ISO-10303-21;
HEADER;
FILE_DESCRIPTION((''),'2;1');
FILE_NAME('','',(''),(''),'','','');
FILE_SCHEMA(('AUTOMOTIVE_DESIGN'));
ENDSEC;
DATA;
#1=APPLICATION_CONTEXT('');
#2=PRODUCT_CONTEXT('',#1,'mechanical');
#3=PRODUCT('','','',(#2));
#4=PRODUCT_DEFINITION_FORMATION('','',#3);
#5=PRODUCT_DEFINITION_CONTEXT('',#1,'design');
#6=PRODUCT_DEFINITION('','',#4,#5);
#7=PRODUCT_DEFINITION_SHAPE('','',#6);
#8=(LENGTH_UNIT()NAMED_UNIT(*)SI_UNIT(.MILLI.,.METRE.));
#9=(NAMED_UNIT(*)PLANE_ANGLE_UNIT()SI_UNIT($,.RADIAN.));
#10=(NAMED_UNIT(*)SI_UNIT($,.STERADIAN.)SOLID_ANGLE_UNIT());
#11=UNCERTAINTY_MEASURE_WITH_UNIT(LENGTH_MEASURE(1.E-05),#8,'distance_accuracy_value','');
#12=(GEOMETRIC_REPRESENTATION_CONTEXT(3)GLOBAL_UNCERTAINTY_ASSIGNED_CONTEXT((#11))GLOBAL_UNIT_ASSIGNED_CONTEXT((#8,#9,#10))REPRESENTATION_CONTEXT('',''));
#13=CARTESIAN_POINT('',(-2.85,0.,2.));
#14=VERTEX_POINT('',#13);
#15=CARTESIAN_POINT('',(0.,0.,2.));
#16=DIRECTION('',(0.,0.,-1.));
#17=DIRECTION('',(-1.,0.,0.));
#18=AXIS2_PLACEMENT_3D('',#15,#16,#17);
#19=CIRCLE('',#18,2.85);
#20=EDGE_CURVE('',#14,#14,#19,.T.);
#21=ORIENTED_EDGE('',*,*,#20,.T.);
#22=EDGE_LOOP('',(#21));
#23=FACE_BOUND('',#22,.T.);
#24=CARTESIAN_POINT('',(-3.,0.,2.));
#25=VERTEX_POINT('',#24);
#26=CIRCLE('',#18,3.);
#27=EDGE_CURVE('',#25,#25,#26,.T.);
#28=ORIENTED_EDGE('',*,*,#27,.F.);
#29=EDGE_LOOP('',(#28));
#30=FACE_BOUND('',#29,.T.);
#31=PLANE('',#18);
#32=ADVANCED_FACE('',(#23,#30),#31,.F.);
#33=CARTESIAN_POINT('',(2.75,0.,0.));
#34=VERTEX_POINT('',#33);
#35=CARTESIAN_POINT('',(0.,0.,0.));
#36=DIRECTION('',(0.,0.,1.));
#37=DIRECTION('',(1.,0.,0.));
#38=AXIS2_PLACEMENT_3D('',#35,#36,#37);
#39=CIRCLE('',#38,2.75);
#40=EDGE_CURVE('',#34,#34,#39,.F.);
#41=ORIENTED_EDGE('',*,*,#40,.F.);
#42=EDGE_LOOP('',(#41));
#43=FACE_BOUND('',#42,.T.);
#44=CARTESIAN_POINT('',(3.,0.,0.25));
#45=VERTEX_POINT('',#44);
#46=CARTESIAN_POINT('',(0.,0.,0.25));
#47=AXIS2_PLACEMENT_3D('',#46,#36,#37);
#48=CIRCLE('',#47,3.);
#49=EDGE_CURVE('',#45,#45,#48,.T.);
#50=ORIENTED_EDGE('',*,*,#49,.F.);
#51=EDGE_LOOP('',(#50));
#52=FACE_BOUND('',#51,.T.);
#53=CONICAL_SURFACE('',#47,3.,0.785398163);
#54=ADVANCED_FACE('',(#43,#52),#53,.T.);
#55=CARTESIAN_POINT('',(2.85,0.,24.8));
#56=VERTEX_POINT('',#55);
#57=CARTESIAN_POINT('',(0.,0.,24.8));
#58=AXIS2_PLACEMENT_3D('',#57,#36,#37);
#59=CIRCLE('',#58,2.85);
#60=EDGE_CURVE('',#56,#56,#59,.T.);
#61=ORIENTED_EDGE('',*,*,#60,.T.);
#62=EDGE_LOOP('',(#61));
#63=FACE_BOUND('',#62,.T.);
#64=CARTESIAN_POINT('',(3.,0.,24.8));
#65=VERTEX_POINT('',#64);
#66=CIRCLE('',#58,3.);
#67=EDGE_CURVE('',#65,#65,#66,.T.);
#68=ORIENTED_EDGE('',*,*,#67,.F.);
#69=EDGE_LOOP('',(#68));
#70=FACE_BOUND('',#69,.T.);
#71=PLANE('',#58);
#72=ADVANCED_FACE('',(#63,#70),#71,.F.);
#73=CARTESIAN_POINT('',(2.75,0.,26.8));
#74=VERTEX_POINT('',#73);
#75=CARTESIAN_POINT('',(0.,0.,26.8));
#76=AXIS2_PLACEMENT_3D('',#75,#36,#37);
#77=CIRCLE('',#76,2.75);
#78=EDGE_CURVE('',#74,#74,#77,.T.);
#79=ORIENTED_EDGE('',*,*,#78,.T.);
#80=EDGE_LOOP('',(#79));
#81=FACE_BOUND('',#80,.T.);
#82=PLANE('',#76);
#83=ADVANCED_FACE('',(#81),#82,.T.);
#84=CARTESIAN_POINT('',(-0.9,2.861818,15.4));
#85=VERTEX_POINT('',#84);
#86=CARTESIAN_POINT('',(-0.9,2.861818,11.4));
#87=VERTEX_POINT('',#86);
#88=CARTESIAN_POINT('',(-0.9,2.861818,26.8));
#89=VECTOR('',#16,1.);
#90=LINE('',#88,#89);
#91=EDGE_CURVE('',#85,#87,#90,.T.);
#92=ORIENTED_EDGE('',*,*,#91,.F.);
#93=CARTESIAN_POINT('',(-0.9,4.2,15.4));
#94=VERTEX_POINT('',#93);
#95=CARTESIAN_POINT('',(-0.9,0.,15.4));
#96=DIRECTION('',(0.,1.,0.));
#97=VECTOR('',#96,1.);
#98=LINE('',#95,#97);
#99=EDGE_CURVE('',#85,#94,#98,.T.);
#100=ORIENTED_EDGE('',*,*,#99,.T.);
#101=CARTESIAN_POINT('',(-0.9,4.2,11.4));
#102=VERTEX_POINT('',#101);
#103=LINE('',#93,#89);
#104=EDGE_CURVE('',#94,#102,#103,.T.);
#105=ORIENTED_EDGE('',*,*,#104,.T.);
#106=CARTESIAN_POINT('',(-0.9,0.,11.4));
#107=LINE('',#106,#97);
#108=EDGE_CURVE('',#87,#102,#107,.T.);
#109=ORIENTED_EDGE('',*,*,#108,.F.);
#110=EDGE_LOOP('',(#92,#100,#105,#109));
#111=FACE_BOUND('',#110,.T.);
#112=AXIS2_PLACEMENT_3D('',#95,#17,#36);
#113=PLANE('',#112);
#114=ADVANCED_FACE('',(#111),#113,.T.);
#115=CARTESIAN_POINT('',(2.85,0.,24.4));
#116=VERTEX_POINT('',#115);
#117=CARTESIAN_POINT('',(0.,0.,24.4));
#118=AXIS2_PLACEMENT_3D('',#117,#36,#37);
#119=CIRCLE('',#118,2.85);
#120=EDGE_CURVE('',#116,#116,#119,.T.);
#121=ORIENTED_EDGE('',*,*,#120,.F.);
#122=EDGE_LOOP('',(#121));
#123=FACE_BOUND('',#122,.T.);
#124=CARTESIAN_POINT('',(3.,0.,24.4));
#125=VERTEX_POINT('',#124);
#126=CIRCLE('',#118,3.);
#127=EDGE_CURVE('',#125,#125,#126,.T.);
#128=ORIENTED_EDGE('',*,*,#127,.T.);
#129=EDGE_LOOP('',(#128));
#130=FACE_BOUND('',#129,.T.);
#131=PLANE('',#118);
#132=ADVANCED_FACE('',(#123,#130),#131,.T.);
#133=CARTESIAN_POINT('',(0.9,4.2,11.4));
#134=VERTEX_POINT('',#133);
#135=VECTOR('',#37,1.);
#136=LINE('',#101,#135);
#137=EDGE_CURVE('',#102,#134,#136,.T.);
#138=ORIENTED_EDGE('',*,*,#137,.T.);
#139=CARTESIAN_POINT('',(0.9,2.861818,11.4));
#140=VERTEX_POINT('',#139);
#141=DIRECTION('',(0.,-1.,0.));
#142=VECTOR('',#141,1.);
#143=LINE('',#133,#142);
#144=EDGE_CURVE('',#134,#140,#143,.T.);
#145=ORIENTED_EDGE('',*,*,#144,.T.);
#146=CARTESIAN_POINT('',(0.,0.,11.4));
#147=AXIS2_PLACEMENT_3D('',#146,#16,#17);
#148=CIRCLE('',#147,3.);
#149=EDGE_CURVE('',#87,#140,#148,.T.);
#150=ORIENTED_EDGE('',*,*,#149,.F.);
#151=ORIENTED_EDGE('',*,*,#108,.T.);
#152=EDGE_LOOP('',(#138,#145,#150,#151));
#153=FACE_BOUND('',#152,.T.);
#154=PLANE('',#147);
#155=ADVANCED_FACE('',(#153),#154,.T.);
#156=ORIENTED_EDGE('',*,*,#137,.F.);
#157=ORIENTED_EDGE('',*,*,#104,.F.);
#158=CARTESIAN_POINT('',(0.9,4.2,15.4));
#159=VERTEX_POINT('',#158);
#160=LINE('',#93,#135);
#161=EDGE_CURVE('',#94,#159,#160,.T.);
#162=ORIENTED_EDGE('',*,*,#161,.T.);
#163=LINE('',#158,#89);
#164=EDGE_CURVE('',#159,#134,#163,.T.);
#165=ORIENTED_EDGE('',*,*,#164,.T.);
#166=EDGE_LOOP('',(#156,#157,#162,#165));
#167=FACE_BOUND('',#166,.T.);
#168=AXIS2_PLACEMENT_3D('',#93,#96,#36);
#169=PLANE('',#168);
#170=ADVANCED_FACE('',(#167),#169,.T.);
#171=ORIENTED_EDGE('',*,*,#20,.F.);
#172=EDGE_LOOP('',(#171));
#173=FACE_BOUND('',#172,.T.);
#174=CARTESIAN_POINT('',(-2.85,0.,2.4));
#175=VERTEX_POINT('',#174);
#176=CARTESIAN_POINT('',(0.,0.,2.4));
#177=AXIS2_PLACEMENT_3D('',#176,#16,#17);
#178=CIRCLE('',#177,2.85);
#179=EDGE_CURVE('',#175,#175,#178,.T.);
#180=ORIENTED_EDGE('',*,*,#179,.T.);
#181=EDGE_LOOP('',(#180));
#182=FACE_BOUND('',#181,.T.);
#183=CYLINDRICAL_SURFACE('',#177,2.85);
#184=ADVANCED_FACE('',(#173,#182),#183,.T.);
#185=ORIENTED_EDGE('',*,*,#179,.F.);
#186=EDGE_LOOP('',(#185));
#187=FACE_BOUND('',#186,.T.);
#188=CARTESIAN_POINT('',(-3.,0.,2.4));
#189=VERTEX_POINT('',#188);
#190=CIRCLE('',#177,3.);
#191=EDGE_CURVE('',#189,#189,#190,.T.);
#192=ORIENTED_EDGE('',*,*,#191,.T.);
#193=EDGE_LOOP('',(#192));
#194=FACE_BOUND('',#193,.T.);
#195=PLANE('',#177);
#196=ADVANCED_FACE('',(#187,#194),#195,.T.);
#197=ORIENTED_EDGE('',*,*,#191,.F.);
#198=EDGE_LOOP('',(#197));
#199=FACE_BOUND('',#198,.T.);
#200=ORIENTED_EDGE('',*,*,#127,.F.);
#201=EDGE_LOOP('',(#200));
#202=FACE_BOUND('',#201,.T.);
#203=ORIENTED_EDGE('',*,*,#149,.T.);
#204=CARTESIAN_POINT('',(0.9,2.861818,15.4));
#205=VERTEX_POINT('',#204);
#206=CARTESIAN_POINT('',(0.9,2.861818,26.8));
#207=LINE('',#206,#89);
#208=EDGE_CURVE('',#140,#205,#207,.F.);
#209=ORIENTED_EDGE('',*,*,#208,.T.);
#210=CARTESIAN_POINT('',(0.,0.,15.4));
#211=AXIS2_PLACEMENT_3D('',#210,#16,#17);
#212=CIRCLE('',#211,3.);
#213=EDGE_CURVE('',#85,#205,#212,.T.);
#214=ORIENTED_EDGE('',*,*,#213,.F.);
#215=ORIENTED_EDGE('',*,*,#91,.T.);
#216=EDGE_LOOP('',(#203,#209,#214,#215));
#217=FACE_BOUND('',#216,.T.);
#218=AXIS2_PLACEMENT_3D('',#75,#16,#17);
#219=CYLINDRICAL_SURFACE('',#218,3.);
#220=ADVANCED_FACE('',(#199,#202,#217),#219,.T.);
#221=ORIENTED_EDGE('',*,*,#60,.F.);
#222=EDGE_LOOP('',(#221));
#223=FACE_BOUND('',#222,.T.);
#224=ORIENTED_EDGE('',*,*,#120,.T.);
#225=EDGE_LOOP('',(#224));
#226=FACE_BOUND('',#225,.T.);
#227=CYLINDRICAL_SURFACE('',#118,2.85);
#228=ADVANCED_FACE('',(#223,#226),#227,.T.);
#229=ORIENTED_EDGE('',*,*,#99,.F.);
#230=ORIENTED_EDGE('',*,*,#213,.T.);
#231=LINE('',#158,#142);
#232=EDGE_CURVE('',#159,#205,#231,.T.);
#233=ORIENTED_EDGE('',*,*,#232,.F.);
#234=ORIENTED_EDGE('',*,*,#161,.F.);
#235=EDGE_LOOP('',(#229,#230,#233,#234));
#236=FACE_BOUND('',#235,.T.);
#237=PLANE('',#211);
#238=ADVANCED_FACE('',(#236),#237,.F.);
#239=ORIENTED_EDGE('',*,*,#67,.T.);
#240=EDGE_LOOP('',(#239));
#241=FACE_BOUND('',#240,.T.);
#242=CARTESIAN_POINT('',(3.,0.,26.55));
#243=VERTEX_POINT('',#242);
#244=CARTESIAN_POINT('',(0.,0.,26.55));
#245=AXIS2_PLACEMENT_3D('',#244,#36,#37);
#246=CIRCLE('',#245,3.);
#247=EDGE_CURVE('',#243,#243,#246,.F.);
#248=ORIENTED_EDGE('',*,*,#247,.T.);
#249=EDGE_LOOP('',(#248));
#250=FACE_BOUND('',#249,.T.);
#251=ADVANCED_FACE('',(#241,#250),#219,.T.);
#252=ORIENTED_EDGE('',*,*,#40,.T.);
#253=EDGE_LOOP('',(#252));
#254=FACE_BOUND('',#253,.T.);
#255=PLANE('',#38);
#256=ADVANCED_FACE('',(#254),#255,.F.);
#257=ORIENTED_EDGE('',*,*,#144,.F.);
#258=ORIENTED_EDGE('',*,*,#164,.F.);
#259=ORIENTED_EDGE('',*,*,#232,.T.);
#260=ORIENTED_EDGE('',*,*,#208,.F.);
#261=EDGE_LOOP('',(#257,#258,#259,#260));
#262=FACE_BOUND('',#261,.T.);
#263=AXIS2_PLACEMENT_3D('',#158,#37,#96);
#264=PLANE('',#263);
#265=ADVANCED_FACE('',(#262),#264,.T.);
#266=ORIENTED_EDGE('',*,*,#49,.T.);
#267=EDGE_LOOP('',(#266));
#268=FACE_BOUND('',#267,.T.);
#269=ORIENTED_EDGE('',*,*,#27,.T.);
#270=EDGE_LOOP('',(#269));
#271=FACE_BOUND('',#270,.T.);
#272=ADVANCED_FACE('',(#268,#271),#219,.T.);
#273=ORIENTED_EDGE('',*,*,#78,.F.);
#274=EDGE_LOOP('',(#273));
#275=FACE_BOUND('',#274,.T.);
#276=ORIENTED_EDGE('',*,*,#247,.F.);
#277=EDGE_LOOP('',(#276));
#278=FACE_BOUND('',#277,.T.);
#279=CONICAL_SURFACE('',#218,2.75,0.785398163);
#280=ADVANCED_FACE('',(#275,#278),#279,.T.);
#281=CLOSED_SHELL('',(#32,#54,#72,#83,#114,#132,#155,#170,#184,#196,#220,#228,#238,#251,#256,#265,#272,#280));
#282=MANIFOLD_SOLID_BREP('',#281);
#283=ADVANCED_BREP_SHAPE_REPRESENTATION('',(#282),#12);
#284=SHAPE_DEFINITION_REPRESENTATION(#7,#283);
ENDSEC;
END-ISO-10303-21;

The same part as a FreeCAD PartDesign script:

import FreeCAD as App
import Part
import Sketcher
from FreeCAD import Vector
Q = App.Units.Quantity


def edges_at(feature, points):
    """Names of the edges that pass closest to the given points."""
    edges = feature.Shape.Edges
    near = lambda p: min(range(len(edges)), key=lambda i: edges[i].distToShape(Part.Vertex(*p))[0])
    return sorted({f"Edge{near(p) + 1}" for p in points})


def add_polygon(sketch, points):
    """Adds a closed chain of lines whose ends are joined by coincident constraints."""
    first, n = sketch.GeometryCount, len(points)
    for a, b in zip(points, points[1:] + points[:1]):
        sketch.addGeometry(Part.LineSegment(App.Vector(*a, 0), App.Vector(*b, 0)), False)
    for i in range(n):
        sketch.addConstraint(Sketcher.Constraint("Coincident", first + i, 2, first + (i + 1) % n, 1))

doc = App.newDocument("Part")
body = doc.addObject("PartDesign::Body", "Body")

sketch1 = body.newObject("Sketcher::SketchObject", "Sketch")
sketch1.AttachmentSupport = (doc.getObject("XY_Plane"), [""])
sketch1.MapMode = "FlatFace"
sketch1.addGeometry(Part.Circle(Vector(0, 0, 0), Vector(0, 0, 1), 3), False)
sketch1.addConstraint(Sketcher.Constraint("Coincident", 0, 3, -1, 1))
sketch1.addConstraint(Sketcher.Constraint("Diameter", 0, Q("6 mm")))
pad1 = body.newObject("PartDesign::Pad", "Pad")
pad1.Profile = sketch1
pad1.Length = 26.8

sketch2 = body.newObject("Sketcher::SketchObject", "Sketch001")
sketch2.AttachmentSupport = (doc.getObject("XY_Plane"), [""])
sketch2.MapMode = "FlatFace"
sketch2.AttachmentOffset = App.Placement(Vector(0, 0, 11.4), App.Rotation())
add_polygon(sketch2, [(0.9, 4.2), (0.9, 0), (-0.9, 0), (-0.9, 4.2)])
sketch2.addConstraint(Sketcher.Constraint("Vertical", 0))
sketch2.addConstraint(Sketcher.Constraint("Horizontal", 1))
sketch2.addConstraint(Sketcher.Constraint("Vertical", 2))
sketch2.addConstraint(Sketcher.Constraint("Horizontal", 3))
sketch2.addConstraint(Sketcher.Constraint("Symmetric", 0, 2, 1, 2, -1, 1))
sketch2.addConstraint(Sketcher.Constraint("DistanceX", 1, 2, 1, 1, Q("1.8 mm")))
sketch2.addConstraint(Sketcher.Constraint("DistanceY", 0, 2, 0, 1, Q("4.2 mm")))
pad2 = body.newObject("PartDesign::Pad", "Pad001")
pad2.Profile = sketch2
pad2.Length = 4

sketch3 = body.newObject("Sketcher::SketchObject", "Sketch002")
sketch3.AttachmentSupport = (doc.getObject("XY_Plane"), [""])
sketch3.MapMode = "FlatFace"
sketch3.AttachmentOffset = App.Placement(Vector(0, 0, 2), App.Rotation())
sketch3.addGeometry(Part.Circle(Vector(0, 0, 0), Vector(0, 0, 1), 3), False)
sketch3.addGeometry(Part.Circle(Vector(0, 0, 0), Vector(0, 0, 1), 2.9), False)
sketch3.addConstraint(Sketcher.Constraint("Coincident", 0, 3, -1, 1))
sketch3.addConstraint(Sketcher.Constraint("Coincident", 1, 3, -1, 1))
sketch3.addConstraint(Sketcher.Constraint("Diameter", 0, Q("6 mm")))
sketch3.addConstraint(Sketcher.Constraint("Diameter", 1, Q("5.7 mm")))
pocket1 = body.newObject("PartDesign::Pocket", "Pocket")
pocket1.Profile = sketch3
pocket1.Length = 0.4
pocket1.Reversed = True

sketch4 = body.newObject("Sketcher::SketchObject", "Sketch003")
sketch4.AttachmentSupport = (doc.getObject("XY_Plane"), [""])
sketch4.MapMode = "FlatFace"
sketch4.AttachmentOffset = App.Placement(Vector(0, 0, 24.4), App.Rotation())
sketch4.addGeometry(Part.Circle(Vector(0, 0, 0), Vector(0, 0, 1), 3), False)
sketch4.addGeometry(Part.Circle(Vector(0, 0, 0), Vector(0, 0, 1), 2.9), False)
sketch4.addConstraint(Sketcher.Constraint("Coincident", 0, 3, -1, 1))
sketch4.addConstraint(Sketcher.Constraint("Coincident", 1, 3, -1, 1))
sketch4.addConstraint(Sketcher.Constraint("Diameter", 1, Q("5.7 mm")))
sketch4.addConstraint(Sketcher.Constraint("Diameter", 0, Q("6.001934 mm")))
pocket2 = body.newObject("PartDesign::Pocket", "Pocket001")
pocket2.Profile = sketch4
pocket2.Length = 0.4
pocket2.Reversed = True
doc.recompute()

chamfer = body.newObject("PartDesign::Chamfer", "Chamfer")
chamfer.Base = (pocket2, edges_at(pocket2, [(-3, 0, 0), (-3, 0, 26.8)]))
chamfer.Size = 0.25

doc.recompute()
